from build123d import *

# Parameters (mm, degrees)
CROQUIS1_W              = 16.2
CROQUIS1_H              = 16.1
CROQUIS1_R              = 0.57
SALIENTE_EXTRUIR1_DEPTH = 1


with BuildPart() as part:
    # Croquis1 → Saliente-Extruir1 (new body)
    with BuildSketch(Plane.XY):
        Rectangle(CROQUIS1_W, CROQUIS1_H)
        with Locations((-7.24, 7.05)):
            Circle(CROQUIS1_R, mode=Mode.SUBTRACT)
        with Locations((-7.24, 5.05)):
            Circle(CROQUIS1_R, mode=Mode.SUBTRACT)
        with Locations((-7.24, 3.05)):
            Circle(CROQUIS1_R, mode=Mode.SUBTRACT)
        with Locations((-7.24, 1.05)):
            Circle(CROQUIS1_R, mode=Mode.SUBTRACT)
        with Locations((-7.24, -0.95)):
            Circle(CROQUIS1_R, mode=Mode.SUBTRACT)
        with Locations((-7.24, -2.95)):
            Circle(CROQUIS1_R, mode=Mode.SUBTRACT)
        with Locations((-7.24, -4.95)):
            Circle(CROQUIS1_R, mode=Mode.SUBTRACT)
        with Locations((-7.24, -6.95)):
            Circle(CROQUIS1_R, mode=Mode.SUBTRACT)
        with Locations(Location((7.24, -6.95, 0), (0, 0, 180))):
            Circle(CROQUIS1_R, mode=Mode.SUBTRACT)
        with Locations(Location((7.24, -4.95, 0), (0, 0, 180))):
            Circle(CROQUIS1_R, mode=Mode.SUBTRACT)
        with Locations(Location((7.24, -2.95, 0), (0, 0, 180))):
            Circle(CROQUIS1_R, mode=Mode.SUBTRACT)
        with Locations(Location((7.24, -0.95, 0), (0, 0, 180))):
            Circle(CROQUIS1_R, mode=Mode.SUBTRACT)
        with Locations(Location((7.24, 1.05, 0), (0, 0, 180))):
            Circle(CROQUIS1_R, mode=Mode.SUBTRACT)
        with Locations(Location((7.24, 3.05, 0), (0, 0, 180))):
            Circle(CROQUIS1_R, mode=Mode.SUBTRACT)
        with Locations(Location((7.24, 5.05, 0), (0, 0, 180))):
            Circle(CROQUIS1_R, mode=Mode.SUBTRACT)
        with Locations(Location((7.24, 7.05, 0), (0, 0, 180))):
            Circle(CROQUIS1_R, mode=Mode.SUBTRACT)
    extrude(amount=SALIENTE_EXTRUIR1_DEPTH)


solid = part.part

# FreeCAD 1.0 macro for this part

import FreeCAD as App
import Part
import Sketcher
from FreeCAD import Vector
Q = App.Units.Quantity

doc = App.newDocument("Part")
body = doc.addObject("PartDesign::Body", "Body")

# Sketch on XY plane
sketch1 = body.newObject("Sketcher::SketchObject", "Sketch")
sketch1.AttachmentSupport = (doc.getObject("XY_Plane"), [""])
sketch1.MapMode = "FlatFace"
sketch1.addGeometry(Part.LineSegment(Vector(-8.1, 8.1, 0), Vector(-8.1, -8.1, 0)), False)
sketch1.addGeometry(Part.LineSegment(Vector(-8.1, -8.1, 0), Vector(8.1, -8.1, 0)), False)
sketch1.addGeometry(Part.LineSegment(Vector(8.1, -8.1, 0), Vector(8.1, 8.1, 0)), False)
sketch1.addGeometry(Part.LineSegment(Vector(8.1, 8.1, 0), Vector(-8.1, 8.1, 0)), False)
sketch1.addGeometry(Part.Circle(Vector(-7.2, -7, 0), Vector(0, 0, 1), 0.6), False)
sketch1.addGeometry(Part.Circle(Vector(-7.2, -5, 0), Vector(0, 0, 1), 0.6), False)
sketch1.addGeometry(Part.Circle(Vector(-7.2, -3, 0), Vector(0, 0, 1), 0.6), False)
sketch1.addGeometry(Part.Circle(Vector(-7.2, -0.9, 0), Vector(0, 0, 1), 0.6), False)
sketch1.addGeometry(Part.Circle(Vector(7.2, -7, 0), Vector(0, 0, 1), 0.6), False)
sketch1.addGeometry(Part.Circle(Vector(7.2, -5, 0), Vector(0, 0, 1), 0.6), False)
sketch1.addGeometry(Part.Circle(Vector(7.2, -3, 0), Vector(0, 0, 1), 0.6), False)
sketch1.addGeometry(Part.Circle(Vector(7.2, -0.9, 0), Vector(0, 0, 1), 0.6), False)
sketch1.addGeometry(Part.Circle(Vector(-7.2, 1.1, 0), Vector(0, 0, 1), 0.6), False)
sketch1.addGeometry(Part.Circle(Vector(-7.2, 3, 0), Vector(0, 0, 1), 0.6), False)
sketch1.addGeometry(Part.Circle(Vector(-7.2, 5, 0), Vector(0, 0, 1), 0.6), False)
sketch1.addGeometry(Part.Circle(Vector(-7.2, 7, 0), Vector(0, 0, 1), 0.6), False)
sketch1.addGeometry(Part.Circle(Vector(7.2, 1.1, 0), Vector(0, 0, 1), 0.6), False)
sketch1.addGeometry(Part.Circle(Vector(7.2, 3, 0), Vector(0, 0, 1), 0.6), False)
sketch1.addGeometry(Part.Circle(Vector(7.2, 5, 0), Vector(0, 0, 1), 0.6), False)
sketch1.addGeometry(Part.Circle(Vector(7.2, 7, 0), Vector(0, 0, 1), 0.6), False)
sketch1.addConstraint(Sketcher.Constraint("Coincident", 0, 2, 1, 1))
sketch1.addConstraint(Sketcher.Constraint("Coincident", 1, 2, 2, 1))
sketch1.addConstraint(Sketcher.Constraint("Coincident", 2, 2, 3, 1))
sketch1.addConstraint(Sketcher.Constraint("Coincident", 3, 2, 0, 1))
sketch1.addConstraint(Sketcher.Constraint("Vertical", 0))
sketch1.addConstraint(Sketcher.Constraint("Horizontal", 1))
sketch1.addConstraint(Sketcher.Constraint("Vertical", 2))
sketch1.addConstraint(Sketcher.Constraint("Horizontal", 3))
sketch1.addConstraint(Sketcher.Constraint("Equal", 4, 5))
sketch1.addConstraint(Sketcher.Constraint("Equal", 5, 6))
sketch1.addConstraint(Sketcher.Constraint("Equal", 6, 7))
sketch1.addConstraint(Sketcher.Constraint("Equal", 7, 8))
sketch1.addConstraint(Sketcher.Constraint("Equal", 8, 9))
sketch1.addConstraint(Sketcher.Constraint("Equal", 9, 10))
sketch1.addConstraint(Sketcher.Constraint("Equal", 10, 11))
sketch1.addConstraint(Sketcher.Constraint("Equal", 11, 12))
sketch1.addConstraint(Sketcher.Constraint("Equal", 12, 13))
sketch1.addConstraint(Sketcher.Constraint("Equal", 13, 14))
sketch1.addConstraint(Sketcher.Constraint("Equal", 14, 15))
sketch1.addConstraint(Sketcher.Constraint("Equal", 15, 16))
sketch1.addConstraint(Sketcher.Constraint("Equal", 16, 17))
sketch1.addConstraint(Sketcher.Constraint("Equal", 17, 18))
sketch1.addConstraint(Sketcher.Constraint("Equal", 18, 19))
sketch1.addConstraint(Sketcher.Constraint("Symmetric", 0, 2, 2, 2, -1, 1))
sketch1.addConstraint(Sketcher.Constraint("Symmetric", 4, 3, 8, 3, -2))
sketch1.addConstraint(Sketcher.Constraint("Symmetric", 5, 3, 9, 3, -2))
sketch1.addConstraint(Sketcher.Constraint("Symmetric", 6, 3, 10, 3, -2))
sketch1.addConstraint(Sketcher.Constraint("Symmetric", 7, 3, 11, 3, -2))
sketch1.addConstraint(Sketcher.Constraint("Symmetric", 12, 3, 16, 3, -2))
sketch1.addConstraint(Sketcher.Constraint("Symmetric", 13, 3, 17, 3, -2))
sketch1.addConstraint(Sketcher.Constraint("Symmetric", 14, 3, 18, 3, -2))
sketch1.addConstraint(Sketcher.Constraint("Symmetric", 15, 3, 19, 3, -2))
sketch1.addConstraint(Sketcher.Constraint("Vertical", 4, 3, 5, 3))
sketch1.addConstraint(Sketcher.Constraint("Vertical", 5, 3, 6, 3))
sketch1.addConstraint(Sketcher.Constraint("Vertical", 6, 3, 7, 3))
sketch1.addConstraint(Sketcher.Constraint("Vertical", 7, 3, 12, 3))
sketch1.addConstraint(Sketcher.Constraint("Vertical", 12, 3, 13, 3))
sketch1.addConstraint(Sketcher.Constraint("Vertical", 13, 3, 14, 3))
sketch1.addConstraint(Sketcher.Constraint("Vertical", 14, 3, 15, 3))
sketch1.addConstraint(Sketcher.Constraint("Diameter", 4, Q("1.14 mm")))
sketch1.addConstraint(Sketcher.Constraint("DistanceX", 1, 1, 1, 2, Q("16.2 mm")))
sketch1.addConstraint(Sketcher.Constraint("DistanceY", 0, 2, 0, 1, Q("16.1 mm")))
sketch1.addConstraint(Sketcher.Constraint("DistanceY", 4, 3, 5, 3, Q("2 mm")))
sketch1.addConstraint(Sketcher.Constraint("DistanceY", 5, 3, 6, 3, Q("2 mm")))
sketch1.addConstraint(Sketcher.Constraint("DistanceY", 6, 3, 7, 3, Q("2 mm")))
sketch1.addConstraint(Sketcher.Constraint("DistanceY", 7, 3, 12, 3, Q("2 mm")))
sketch1.addConstraint(Sketcher.Constraint("DistanceY", 12, 3, 13, 3, Q("2 mm")))
sketch1.addConstraint(Sketcher.Constraint("DistanceY", 13, 3, 14, 3, Q("2 mm")))
sketch1.addConstraint(Sketcher.Constraint("DistanceY", 14, 3, 15, 3, Q("2 mm")))
sketch1.addConstraint(Sketcher.Constraint("DistanceY", 19, 3, 2, 2, Q("1 mm")))
sketch1.addConstraint(Sketcher.Constraint("DistanceX", 4, 3, -1, 1, Q("7.24 mm")))
pad1 = body.newObject("PartDesign::Pad", "Pad")
pad1.Profile = sketch1
pad1.Length = 1

doc.recompute()
